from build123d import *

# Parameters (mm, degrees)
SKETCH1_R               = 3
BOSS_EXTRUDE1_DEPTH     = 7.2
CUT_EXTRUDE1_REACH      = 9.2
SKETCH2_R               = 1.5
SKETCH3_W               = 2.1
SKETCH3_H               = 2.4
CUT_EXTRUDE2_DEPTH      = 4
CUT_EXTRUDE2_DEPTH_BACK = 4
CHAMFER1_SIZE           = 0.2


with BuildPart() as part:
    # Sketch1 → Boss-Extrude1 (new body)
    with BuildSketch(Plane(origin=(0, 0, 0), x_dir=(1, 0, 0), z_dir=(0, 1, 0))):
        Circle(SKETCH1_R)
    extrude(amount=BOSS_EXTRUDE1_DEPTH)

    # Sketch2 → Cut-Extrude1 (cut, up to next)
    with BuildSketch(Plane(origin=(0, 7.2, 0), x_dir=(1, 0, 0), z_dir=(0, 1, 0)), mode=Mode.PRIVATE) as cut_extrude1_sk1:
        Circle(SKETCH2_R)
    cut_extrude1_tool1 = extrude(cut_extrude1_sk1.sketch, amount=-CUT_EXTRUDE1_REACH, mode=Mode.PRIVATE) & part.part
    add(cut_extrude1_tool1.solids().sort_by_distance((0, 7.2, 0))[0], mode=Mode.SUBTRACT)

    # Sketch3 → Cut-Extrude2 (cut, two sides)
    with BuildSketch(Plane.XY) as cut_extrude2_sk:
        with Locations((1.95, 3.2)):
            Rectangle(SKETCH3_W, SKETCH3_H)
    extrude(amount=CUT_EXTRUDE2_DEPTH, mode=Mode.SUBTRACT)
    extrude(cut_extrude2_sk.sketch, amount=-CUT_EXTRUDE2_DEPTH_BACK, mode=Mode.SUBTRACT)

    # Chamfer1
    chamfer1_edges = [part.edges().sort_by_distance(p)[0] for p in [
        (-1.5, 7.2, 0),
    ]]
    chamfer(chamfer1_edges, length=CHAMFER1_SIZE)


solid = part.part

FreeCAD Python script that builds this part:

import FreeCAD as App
import Part
import Sketcher


def edges_at(feature, points):
    """Names of the edges that pass closest to the given points."""
    edges = feature.Shape.Edges
    near = lambda p: min(range(len(edges)), key=lambda i: edges[i].distToShape(Part.Vertex(*p))[0])
    return sorted({f"Edge{near(p) + 1}" for p in points})


def add_polygon(sketch, points):
    """Adds a closed chain of lines whose ends are joined by coincident constraints."""
    first, n = sketch.GeometryCount, len(points)
    for a, b in zip(points, points[1:] + points[:1]):
        sketch.addGeometry(Part.LineSegment(App.Vector(*a, 0), App.Vector(*b, 0)), False)
    for i in range(n):
        sketch.addConstraint(Sketcher.Constraint("Coincident", first + i, 2, first + (i + 1) % n, 1))

doc = App.newDocument("Part")
body = doc.addObject("PartDesign::Body", "Body")

# Sketch on XZ plane
sketch1 = body.newObject("Sketcher::SketchObject", "Sketch")
sketch1.AttachmentSupport = (doc.getObject("XZ_Plane"), [""])
sketch1.MapMode = "FlatFace"
sketch1.addGeometry(Part.Circle(App.Vector(0, 0, 0), App.Vector(0, 0, 1), 3), False)
sketch1.addConstraint(Sketcher.Constraint("Coincident", 0, 3, -1, 1))
sketch1.addConstraint(Sketcher.Constraint("Diameter", 0, 6.0))
pad1 = body.newObject("PartDesign::Pad", "Pad")
pad1.Profile = sketch1
pad1.Length = 7.2
pad1.Reversed = True

# Sketch on XZ plane
sketch2 = body.newObject("Sketcher::SketchObject", "Sketch001")
sketch2.AttachmentSupport = (doc.getObject("XZ_Plane"), [""])
sketch2.MapMode = "FlatFace"
sketch2.AttachmentOffset = App.Placement(App.Vector(0, 0, -7.2), App.Rotation())
sketch2.addGeometry(Part.Circle(App.Vector(0, 0, 0), App.Vector(0, 0, 1), 1.5), False)
sketch2.addConstraint(Sketcher.Constraint("Coincident", 0, 3, -1, 1))
sketch2.addConstraint(Sketcher.Constraint("Diameter", 0, 3.0))
pocket1 = body.newObject("PartDesign::Pocket", "Pocket")
pocket1.Profile = sketch2
pocket1.Type = "UpToFirst"
pocket1.Reversed = True

# Sketch on XY plane
sketch3 = body.newObject("Sketcher::SketchObject", "Sketch002")
sketch3.AttachmentSupport = (doc.getObject("XY_Plane"), [""])
sketch3.MapMode = "FlatFace"
add_polygon(sketch3, [(0.9, 4.4), (0.9, 2), (3, 2), (3, 4.4)])  # lines 0-3
sketch3.addConstraint(Sketcher.Constraint("Vertical", 0))
sketch3.addConstraint(Sketcher.Constraint("Horizontal", 1))
sketch3.addConstraint(Sketcher.Constraint("Vertical", 2))
sketch3.addConstraint(Sketcher.Constraint("Horizontal", 3))
sketch3.addConstraint(Sketcher.Constraint("DistanceX", 1, 1, 1, 2, 2.1))
sketch3.addConstraint(Sketcher.Constraint("DistanceY", 0, 2, 0, 1, 2.4))
sketch3.addConstraint(Sketcher.Constraint("DistanceY", -1, 1, 0, 2, 2.0))
sketch3.addConstraint(Sketcher.Constraint("DistanceX", -1, 1, 1, 2, 3.0))
pocket2 = body.newObject("PartDesign::Pocket", "Pocket001")
pocket2.Profile = sketch3
pocket2.Type = "ThroughAll"
pocket2.Midplane = True
doc.recompute()

chamfer = body.newObject("PartDesign::Chamfer", "Chamfer")
chamfer.Base = (pocket2, edges_at(pocket2, [(-1.5, 7.2, 0)]))
chamfer.Size = 0.2

doc.recompute()
